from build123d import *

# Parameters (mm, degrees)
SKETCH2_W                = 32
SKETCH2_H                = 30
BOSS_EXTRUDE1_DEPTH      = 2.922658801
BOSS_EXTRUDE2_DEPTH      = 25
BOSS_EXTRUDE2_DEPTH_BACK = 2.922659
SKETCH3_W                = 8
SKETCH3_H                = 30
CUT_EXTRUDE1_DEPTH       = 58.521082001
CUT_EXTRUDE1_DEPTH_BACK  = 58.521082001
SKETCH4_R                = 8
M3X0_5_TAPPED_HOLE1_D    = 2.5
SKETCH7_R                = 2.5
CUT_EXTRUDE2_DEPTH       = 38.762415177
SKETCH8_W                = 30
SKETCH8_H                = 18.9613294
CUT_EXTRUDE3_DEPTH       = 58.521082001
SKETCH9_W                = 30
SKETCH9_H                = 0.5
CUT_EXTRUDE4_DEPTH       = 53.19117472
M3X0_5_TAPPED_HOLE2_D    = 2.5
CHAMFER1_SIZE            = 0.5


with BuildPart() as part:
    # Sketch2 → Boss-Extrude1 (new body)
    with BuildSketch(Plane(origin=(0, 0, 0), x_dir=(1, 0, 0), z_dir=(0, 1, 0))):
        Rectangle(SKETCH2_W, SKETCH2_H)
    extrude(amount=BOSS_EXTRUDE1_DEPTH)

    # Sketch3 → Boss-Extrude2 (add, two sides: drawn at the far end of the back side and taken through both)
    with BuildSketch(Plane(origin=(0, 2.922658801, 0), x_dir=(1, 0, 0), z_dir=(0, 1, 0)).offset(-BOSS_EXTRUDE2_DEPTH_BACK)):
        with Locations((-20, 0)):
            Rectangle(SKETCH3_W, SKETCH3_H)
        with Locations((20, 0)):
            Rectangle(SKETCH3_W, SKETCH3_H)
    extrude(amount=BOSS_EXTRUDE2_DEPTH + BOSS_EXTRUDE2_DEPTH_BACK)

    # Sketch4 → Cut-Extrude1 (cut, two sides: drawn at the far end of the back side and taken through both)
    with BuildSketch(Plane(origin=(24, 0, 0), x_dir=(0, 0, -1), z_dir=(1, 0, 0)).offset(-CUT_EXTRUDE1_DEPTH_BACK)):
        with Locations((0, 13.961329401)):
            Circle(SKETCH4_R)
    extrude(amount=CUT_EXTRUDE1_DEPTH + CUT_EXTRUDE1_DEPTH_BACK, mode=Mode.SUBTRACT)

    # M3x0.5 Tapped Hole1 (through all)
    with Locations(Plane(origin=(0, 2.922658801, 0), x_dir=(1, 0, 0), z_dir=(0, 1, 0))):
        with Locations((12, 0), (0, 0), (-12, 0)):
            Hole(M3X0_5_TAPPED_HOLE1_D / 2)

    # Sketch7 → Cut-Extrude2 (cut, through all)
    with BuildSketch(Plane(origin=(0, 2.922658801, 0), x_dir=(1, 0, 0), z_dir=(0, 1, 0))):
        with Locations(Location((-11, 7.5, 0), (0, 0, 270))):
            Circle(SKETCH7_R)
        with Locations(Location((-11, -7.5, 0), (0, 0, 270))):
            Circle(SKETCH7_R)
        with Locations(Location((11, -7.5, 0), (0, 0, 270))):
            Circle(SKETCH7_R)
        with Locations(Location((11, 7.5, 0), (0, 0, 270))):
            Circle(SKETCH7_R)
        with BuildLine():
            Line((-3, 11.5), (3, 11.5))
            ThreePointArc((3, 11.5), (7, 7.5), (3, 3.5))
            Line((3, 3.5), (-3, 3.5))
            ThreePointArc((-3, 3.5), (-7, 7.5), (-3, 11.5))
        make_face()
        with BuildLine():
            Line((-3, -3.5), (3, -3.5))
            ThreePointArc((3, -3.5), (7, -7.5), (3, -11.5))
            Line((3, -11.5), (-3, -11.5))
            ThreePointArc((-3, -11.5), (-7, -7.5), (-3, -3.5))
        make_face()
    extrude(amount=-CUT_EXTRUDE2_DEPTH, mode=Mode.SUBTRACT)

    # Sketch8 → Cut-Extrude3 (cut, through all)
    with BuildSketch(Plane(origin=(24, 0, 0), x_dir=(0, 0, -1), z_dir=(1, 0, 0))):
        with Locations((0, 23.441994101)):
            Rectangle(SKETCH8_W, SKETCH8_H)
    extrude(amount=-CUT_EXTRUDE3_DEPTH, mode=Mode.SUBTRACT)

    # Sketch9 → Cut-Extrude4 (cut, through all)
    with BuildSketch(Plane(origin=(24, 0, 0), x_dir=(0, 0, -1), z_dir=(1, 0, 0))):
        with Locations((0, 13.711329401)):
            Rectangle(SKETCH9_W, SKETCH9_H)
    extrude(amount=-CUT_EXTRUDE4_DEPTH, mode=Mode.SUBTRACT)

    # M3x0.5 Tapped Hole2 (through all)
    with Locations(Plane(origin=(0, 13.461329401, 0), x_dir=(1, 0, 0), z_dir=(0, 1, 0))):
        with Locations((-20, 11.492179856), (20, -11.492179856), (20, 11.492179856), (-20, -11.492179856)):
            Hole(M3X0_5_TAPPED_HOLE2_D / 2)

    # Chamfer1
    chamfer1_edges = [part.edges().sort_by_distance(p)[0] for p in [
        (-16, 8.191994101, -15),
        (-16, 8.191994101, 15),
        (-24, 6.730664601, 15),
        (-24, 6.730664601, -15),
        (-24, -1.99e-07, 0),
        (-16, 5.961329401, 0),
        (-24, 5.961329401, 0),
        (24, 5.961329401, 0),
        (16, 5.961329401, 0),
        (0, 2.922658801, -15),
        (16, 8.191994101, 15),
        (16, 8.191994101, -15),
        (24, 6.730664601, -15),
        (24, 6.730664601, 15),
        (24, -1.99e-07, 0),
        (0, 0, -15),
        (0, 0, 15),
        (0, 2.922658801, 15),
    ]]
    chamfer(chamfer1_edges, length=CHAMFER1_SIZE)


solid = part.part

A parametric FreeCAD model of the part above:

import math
import FreeCAD as App
import Part
import Sketcher


def edges_at(feature, points):
    """Names of the edges that pass closest to the given points."""
    edges = feature.Shape.Edges
    near = lambda p: min(range(len(edges)), key=lambda i: edges[i].distToShape(Part.Vertex(*p))[0])
    return sorted({f"Edge{near(p) + 1}" for p in points})

doc = App.newDocument("Part")
body = doc.addObject("PartDesign::Body", "Body")

sketch1 = body.newObject("Sketcher::SketchObject", "Sketch")
sketch1.AttachmentSupport = (doc.getObject("XZ_Plane"), [""])
sketch1.MapMode = "FlatFace"
sketch1.addGeometry(Part.LineSegment(App.Vector(-16, -15, 0), App.Vector(-16, 15, 0)), False)
sketch1.addGeometry(Part.LineSegment(App.Vector(-16, 15, 0), App.Vector(16, 15, 0)), False)
sketch1.addGeometry(Part.LineSegment(App.Vector(16, 15, 0), App.Vector(16, -15, 0)), False)
sketch1.addGeometry(Part.LineSegment(App.Vector(16, -15, 0), App.Vector(-16, -15, 0)), False)
sketch1.addConstraint(Sketcher.Constraint("Coincident", 0, 2, 1, 1))
sketch1.addConstraint(Sketcher.Constraint("Coincident", 1, 2, 2, 1))
sketch1.addConstraint(Sketcher.Constraint("Coincident", 2, 2, 3, 1))
sketch1.addConstraint(Sketcher.Constraint("Coincident", 3, 2, 0, 1))
sketch1.addConstraint(Sketcher.Constraint("Vertical", 0))
sketch1.addConstraint(Sketcher.Constraint("Horizontal", 1))
sketch1.addConstraint(Sketcher.Constraint("Vertical", 2))
sketch1.addConstraint(Sketcher.Constraint("Horizontal", 3))
sketch1.addConstraint(Sketcher.Constraint("Symmetric", 0, 2, 2, 2, -1, 1))
sketch1.addConstraint(Sketcher.Constraint("DistanceX", 1, 1, 1, 2, 32.0))
sketch1.addConstraint(Sketcher.Constraint("DistanceY", 0, 1, 0, 2, 30.0))
pad1 = body.newObject("PartDesign::Pad", "Pad")
pad1.Profile = sketch1
pad1.Length = 2.922659
pad1.Reversed = True

sketch2 = body.newObject("Sketcher::SketchObject", "Sketch001")
sketch2.AttachmentSupport = (doc.getObject("XZ_Plane"), [""])
sketch2.MapMode = "FlatFace"
sketch2.AttachmentOffset = App.Placement(App.Vector(0, 0, -2.922659), App.Rotation())
sketch2.addGeometry(Part.LineSegment(App.Vector(-24, -15, 0), App.Vector(-24, 15, 0)), False)
sketch2.addGeometry(Part.LineSegment(App.Vector(-24, 15, 0), App.Vector(-16, 15, 0)), False)
sketch2.addGeometry(Part.LineSegment(App.Vector(-16, 15, 0), App.Vector(-16, -15, 0)), False)
sketch2.addGeometry(Part.LineSegment(App.Vector(-16, -15, 0), App.Vector(-24, -15, 0)), False)
sketch2.addGeometry(Part.LineSegment(App.Vector(16, -15, 0), App.Vector(16, 15, 0)), False)
sketch2.addGeometry(Part.LineSegment(App.Vector(16, 15, 0), App.Vector(24, 15, 0)), False)
sketch2.addGeometry(Part.LineSegment(App.Vector(24, 15, 0), App.Vector(24, -15, 0)), False)
sketch2.addGeometry(Part.LineSegment(App.Vector(24, -15, 0), App.Vector(16, -15, 0)), False)
sketch2.addConstraint(Sketcher.Constraint("Coincident", 0, 2, 1, 1))
sketch2.addConstraint(Sketcher.Constraint("Coincident", 1, 2, 2, 1))
sketch2.addConstraint(Sketcher.Constraint("Coincident", 2, 2, 3, 1))
sketch2.addConstraint(Sketcher.Constraint("Coincident", 3, 2, 0, 1))
sketch2.addConstraint(Sketcher.Constraint("Coincident", 4, 2, 5, 1))
sketch2.addConstraint(Sketcher.Constraint("Coincident", 5, 2, 6, 1))
sketch2.addConstraint(Sketcher.Constraint("Coincident", 6, 2, 7, 1))
sketch2.addConstraint(Sketcher.Constraint("Coincident", 7, 2, 4, 1))
sketch2.addConstraint(Sketcher.Constraint("Vertical", 0))
sketch2.addConstraint(Sketcher.Constraint("Horizontal", 1))
sketch2.addConstraint(Sketcher.Constraint("Vertical", 2))
sketch2.addConstraint(Sketcher.Constraint("Horizontal", 3))
sketch2.addConstraint(Sketcher.Constraint("Vertical", 4))
sketch2.addConstraint(Sketcher.Constraint("Horizontal", 5))
sketch2.addConstraint(Sketcher.Constraint("Vertical", 6))
sketch2.addConstraint(Sketcher.Constraint("Horizontal", 7))
sketch2.addConstraint(Sketcher.Constraint("Symmetric", 2, 2, 4, 2, -1, 1))
sketch2.addConstraint(Sketcher.Constraint("Symmetric", 0, 2, 6, 2, -1, 1))
sketch2.addConstraint(Sketcher.Constraint("Horizontal", 1, 2, 4, 2))
sketch2.addConstraint(Sketcher.Constraint("DistanceX", 1, 1, 1, 2, 8.0))
sketch2.addConstraint(Sketcher.Constraint("DistanceY", 0, 1, 0, 2, 30.0))
sketch2.addConstraint(Sketcher.Constraint("DistanceX", 0, 2, -1, 1, 24.0))
pad2 = body.newObject("PartDesign::Pad", "Pad001")
pad2.Profile = sketch2
pad2.Type = "TwoLengths"
pad2.Length = 25
pad2.Length2 = 2.922659
pad2.Reversed = True

sketch3 = body.newObject("Sketcher::SketchObject", "Sketch002")
sketch3.AttachmentSupport = (doc.getObject("YZ_Plane"), [""])
sketch3.MapMode = "FlatFace"
sketch3.AttachmentOffset = App.Placement(App.Vector(0, 0, 24), App.Rotation())
sketch3.addGeometry(Part.Circle(App.Vector(14, 0, 0), App.Vector(0, 0, 1), 8), False)
sketch3.addConstraint(Sketcher.Constraint("PointOnObject", 0, 3, -1))
sketch3.addConstraint(Sketcher.Constraint("Diameter", 0, 16.0))
sketch3.addConstraint(Sketcher.Constraint("DistanceX", -1, 1, 0, 3, 13.961329))
pocket1 = body.newObject("PartDesign::Pocket", "Pocket")
pocket1.Profile = sketch3
pocket1.Type = "ThroughAll"
pocket1.Midplane = True

sketch4 = body.newObject("Sketcher::SketchObject", "Sketch003")
sketch4.AttachmentSupport = (doc.getObject("XZ_Plane"), [""])
sketch4.MapMode = "FlatFace"
sketch4.AttachmentOffset = App.Placement(App.Vector(0, 0, -2.922659), App.Rotation())
sketch4.addGeometry(Part.Circle(App.Vector(12, 0, 0), App.Vector(0, 0, 1), 1.2), False)
sketch4.addGeometry(Part.Circle(App.Vector(0, 0, 0), App.Vector(0, 0, 1), 1.2), False)
sketch4.addGeometry(Part.Circle(App.Vector(-12, 0, 0), App.Vector(0, 0, 1), 1.2), False)
sketch4.addConstraint(Sketcher.Constraint("Coincident", 1, 3, -1, 1))
sketch4.addConstraint(Sketcher.Constraint("Equal", 0, 1))
sketch4.addConstraint(Sketcher.Constraint("Equal", 1, 2))
sketch4.addConstraint(Sketcher.Constraint("Symmetric", 0, 3, 2, 3, -1, 1))
sketch4.addConstraint(Sketcher.Constraint("PointOnObject", 0, 3, -1))
sketch4.addConstraint(Sketcher.Constraint("Diameter", 0, 2.5))
sketch4.addConstraint(Sketcher.Constraint("DistanceX", -1, 1, 0, 3, 12.0))
doc.recompute()
hole = body.newObject("PartDesign::Hole", "Hole")
hole.Profile = sketch4
hole.ThreadType = "None"
hole.Diameter = 2.5
hole.DepthType = "ThroughAll"
hole.Reversed = True

sketch5 = body.newObject("Sketcher::SketchObject", "Sketch004")
sketch5.AttachmentSupport = (doc.getObject("XZ_Plane"), [""])
sketch5.MapMode = "FlatFace"
sketch5.AttachmentOffset = App.Placement(App.Vector(0, 0, -2.922659), App.Rotation())
sketch5.addGeometry(Part.Circle(App.Vector(-11, -7.5, 0), App.Vector(0, 0, 1), 2.5), False)
sketch5.addGeometry(Part.Circle(App.Vector(-11, 7.5, 0), App.Vector(0, 0, 1), 2.5), False)
sketch5.addGeometry(Part.Circle(App.Vector(11, 7.5, 0), App.Vector(0, 0, 1), 2.5), False)
sketch5.addGeometry(Part.Circle(App.Vector(11, -7.5, 0), App.Vector(0, 0, 1), 2.5), False)
sketch5.addGeometry(Part.LineSegment(App.Vector(3, -11.5, 0), App.Vector(-3, -11.5, 0)), False)
sketch5.addGeometry(Part.ArcOfCircle(Part.Circle(App.Vector(-3, -7.5, 0), App.Vector(0, 0, 1), 4), math.radians(90), math.radians(270)), False)
sketch5.addGeometry(Part.LineSegment(App.Vector(-3, -3.5, 0), App.Vector(3, -3.5, 0)), False)
sketch5.addGeometry(Part.ArcOfCircle(Part.Circle(App.Vector(3, -7.5, 0), App.Vector(0, 0, 1), 4), math.radians(-90), math.radians(90)), False)
sketch5.addGeometry(Part.LineSegment(App.Vector(3, 3.5, 0), App.Vector(-3, 3.5, 0)), False)
sketch5.addGeometry(Part.ArcOfCircle(Part.Circle(App.Vector(-3, 7.5, 0), App.Vector(0, 0, 1), 4), math.radians(90), math.radians(270)), False)
sketch5.addGeometry(Part.LineSegment(App.Vector(-3, 11.5, 0), App.Vector(3, 11.5, 0)), False)
sketch5.addGeometry(Part.ArcOfCircle(Part.Circle(App.Vector(3, 7.5, 0), App.Vector(0, 0, 1), 4), math.radians(-90), math.radians(90)), False)
sketch5.addConstraint(Sketcher.Constraint("Tangent", 4, 2, 5, 2))
sketch5.addConstraint(Sketcher.Constraint("Tangent", 5, 1, 6, 1))
sketch5.addConstraint(Sketcher.Constraint("Tangent", 6, 2, 7, 2))
sketch5.addConstraint(Sketcher.Constraint("Tangent", 7, 1, 4, 1))
sketch5.addConstraint(Sketcher.Constraint("Tangent", 8, 2, 9, 2))
sketch5.addConstraint(Sketcher.Constraint("Tangent", 9, 1, 10, 1))
sketch5.addConstraint(Sketcher.Constraint("Tangent", 10, 2, 11, 2))
sketch5.addConstraint(Sketcher.Constraint("Tangent", 11, 1, 8, 1))
sketch5.addConstraint(Sketcher.Constraint("Horizontal", 4))
sketch5.addConstraint(Sketcher.Constraint("Horizontal", 6))
sketch5.addConstraint(Sketcher.Constraint("Horizontal", 8))
sketch5.addConstraint(Sketcher.Constraint("Horizontal", 10))
sketch5.addConstraint(Sketcher.Constraint("Equal", 0, 1))
sketch5.addConstraint(Sketcher.Constraint("Equal", 1, 2))
sketch5.addConstraint(Sketcher.Constraint("Equal", 2, 3))
sketch5.addConstraint(Sketcher.Constraint("Equal", 7, 9))
sketch5.addConstraint(Sketcher.Constraint("Symmetric", 0, 3, 2, 3, -1, 1))
sketch5.addConstraint(Sketcher.Constraint("Symmetric", 1, 3, 3, 3, -1, 1))
sketch5.addConstraint(Sketcher.Constraint("Symmetric", 7, 3, 9, 3, -1, 1))
sketch5.addConstraint(Sketcher.Constraint("Symmetric", 1, 3, 2, 3, -2))
sketch5.addConstraint(Sketcher.Constraint("Horizontal", 3, 3, 5, 3))
sketch5.addConstraint(Sketcher.Constraint("Vertical", 5, 3, 9, 3))
sketch5.addConstraint(Sketcher.Constraint("Vertical", 7, 3, 11, 3))
sketch5.addConstraint(Sketcher.Constraint("Diameter", 0, 5.0))
sketch5.addConstraint(Sketcher.Constraint("Radius", 5, 4.0))
sketch5.addConstraint(Sketcher.Constraint("DistanceX", 4, 2, 4, 1, 6.0))
sketch5.addConstraint(Sketcher.Constraint("DistanceX", 0, 3, -1, 1, 11.0))
sketch5.addConstraint(Sketcher.Constraint("DistanceY", 0, 3, 1, 3, 15.0))
pocket2 = body.newObject("PartDesign::Pocket", "Pocket001")
pocket2.Profile = sketch5
pocket2.Type = "ThroughAll"
pocket2.Reversed = True

sketch6 = body.newObject("Sketcher::SketchObject", "Sketch005")
sketch6.AttachmentSupport = (doc.getObject("YZ_Plane"), [""])
sketch6.MapMode = "FlatFace"
sketch6.AttachmentOffset = App.Placement(App.Vector(0, 0, 24), App.Rotation())
sketch6.addGeometry(Part.LineSegment(App.Vector(33, 15, 0), App.Vector(14, 15, 0)), False)
sketch6.addGeometry(Part.LineSegment(App.Vector(14, 15, 0), App.Vector(14, -15, 0)), False)
sketch6.addGeometry(Part.LineSegment(App.Vector(14, -15, 0), App.Vector(33, -15, 0)), False)
sketch6.addGeometry(Part.LineSegment(App.Vector(33, -15, 0), App.Vector(33, 15, 0)), False)
sketch6.addConstraint(Sketcher.Constraint("Coincident", 0, 2, 1, 1))
sketch6.addConstraint(Sketcher.Constraint("Coincident", 1, 2, 2, 1))
sketch6.addConstraint(Sketcher.Constraint("Coincident", 2, 2, 3, 1))
sketch6.addConstraint(Sketcher.Constraint("Coincident", 3, 2, 0, 1))
sketch6.addConstraint(Sketcher.Constraint("Horizontal", 0))
sketch6.addConstraint(Sketcher.Constraint("Vertical", 1))
sketch6.addConstraint(Sketcher.Constraint("Horizontal", 2))
sketch6.addConstraint(Sketcher.Constraint("Vertical", 3))
sketch6.addConstraint(Sketcher.Constraint("DistanceY", 1, 2, 1, 1, 30.0))
sketch6.addConstraint(Sketcher.Constraint("DistanceY", -1, 1, 0, 2, 15.0))
sketch6.addConstraint(Sketcher.Constraint("DistanceX", 0, 2, 0, 1, 18.961329))
sketch6.addConstraint(Sketcher.Constraint("DistanceX", -1, 1, 0, 2, 13.961329))
pocket3 = body.newObject("PartDesign::Pocket", "Pocket002")
pocket3.Profile = sketch6
pocket3.Type = "ThroughAll"

sketch7 = body.newObject("Sketcher::SketchObject", "Sketch006")
sketch7.AttachmentSupport = (doc.getObject("YZ_Plane"), [""])
sketch7.MapMode = "FlatFace"
sketch7.AttachmentOffset = App.Placement(App.Vector(0, 0, 24), App.Rotation())
sketch7.addGeometry(Part.LineSegment(App.Vector(14, 15, 0), App.Vector(13.5, 15, 0)), False)
sketch7.addGeometry(Part.LineSegment(App.Vector(13.5, 15, 0), App.Vector(13.5, -15, 0)), False)
sketch7.addGeometry(Part.LineSegment(App.Vector(13.5, -15, 0), App.Vector(14, -15, 0)), False)
sketch7.addGeometry(Part.LineSegment(App.Vector(14, -15, 0), App.Vector(14, 15, 0)), False)
sketch7.addConstraint(Sketcher.Constraint("Coincident", 0, 2, 1, 1))
sketch7.addConstraint(Sketcher.Constraint("Coincident", 1, 2, 2, 1))
sketch7.addConstraint(Sketcher.Constraint("Coincident", 2, 2, 3, 1))
sketch7.addConstraint(Sketcher.Constraint("Coincident", 3, 2, 0, 1))
sketch7.addConstraint(Sketcher.Constraint("Horizontal", 0))
sketch7.addConstraint(Sketcher.Constraint("Vertical", 1))
sketch7.addConstraint(Sketcher.Constraint("Horizontal", 2))
sketch7.addConstraint(Sketcher.Constraint("Vertical", 3))
sketch7.addConstraint(Sketcher.Constraint("DistanceY", 1, 2, 1, 1, 30.0))
sketch7.addConstraint(Sketcher.Constraint("DistanceX", 0, 2, 0, 1, 0.5))
sketch7.addConstraint(Sketcher.Constraint("DistanceY", -1, 1, 0, 2, 15.0))
sketch7.addConstraint(Sketcher.Constraint("DistanceX", -1, 1, 0, 2, 13.461329))
pocket4 = body.newObject("PartDesign::Pocket", "Pocket003")
pocket4.Profile = sketch7
pocket4.Type = "ThroughAll"

sketch8 = body.newObject("Sketcher::SketchObject", "Sketch007")
sketch8.AttachmentSupport = (doc.getObject("XZ_Plane"), [""])
sketch8.MapMode = "FlatFace"
sketch8.AttachmentOffset = App.Placement(App.Vector(0, 0, -13.461329), App.Rotation())
sketch8.addGeometry(Part.Circle(App.Vector(-20, -11.5, 0), App.Vector(0, 0, 1), 1.2), False)
sketch8.addGeometry(Part.Circle(App.Vector(20, 11.5, 0), App.Vector(0, 0, 1), 1.2), False)
sketch8.addGeometry(Part.Circle(App.Vector(20, -11.5, 0), App.Vector(0, 0, 1), 1.2), False)
sketch8.addGeometry(Part.Circle(App.Vector(-20, 11.5, 0), App.Vector(0, 0, 1), 1.2), False)
sketch8.addConstraint(Sketcher.Constraint("Equal", 0, 1))
sketch8.addConstraint(Sketcher.Constraint("Equal", 1, 2))
sketch8.addConstraint(Sketcher.Constraint("Equal", 2, 3))
sketch8.addConstraint(Sketcher.Constraint("Symmetric", 0, 3, 1, 3, -1, 1))
sketch8.addConstraint(Sketcher.Constraint("Symmetric", 2, 3, 3, 3, -1, 1))
sketch8.addConstraint(Sketcher.Constraint("Symmetric", 0, 3, 2, 3, -2))
sketch8.addConstraint(Sketcher.Constraint("Diameter", 0, 2.5))
sketch8.addConstraint(Sketcher.Constraint("DistanceX", 0, 3, -1, 1, 20.0))
sketch8.addConstraint(Sketcher.Constraint("DistanceY", 0, 3, -1, 1, 11.49218))
doc.recompute()
hole2 = body.newObject("PartDesign::Hole", "Hole001")
hole2.Profile = sketch8
hole2.ThreadType = "None"
hole2.Diameter = 2.5
hole2.DepthType = "ThroughAll"
hole2.Reversed = True
doc.recompute()

chamfer = body.newObject("PartDesign::Chamfer", "Chamfer")
chamfer.Base = (hole2, edges_at(hole2, [
    (-16, 8.192, -15),
    (-16, 8.192, 15),
    (-24, 6.731, 15),
    (-24, 6.731, -15),
    (-24, 0, 0),
    (-16, 5.961, 0),
    (-24, 5.961, 0),
    (24, 5.961, 0),
    (16, 5.961, 0),
    (0, 2.923, -15),
    (16, 8.192, 15),
    (16, 8.192, -15),
    (24, 6.731, -15),
    (24, 6.731, 15),
    (24, 0, 0),
    (0, 0, -15),
    (0, 0, 15),
    (0, 2.923, 15),
]))
chamfer.Size = 0.5

doc.recompute()
